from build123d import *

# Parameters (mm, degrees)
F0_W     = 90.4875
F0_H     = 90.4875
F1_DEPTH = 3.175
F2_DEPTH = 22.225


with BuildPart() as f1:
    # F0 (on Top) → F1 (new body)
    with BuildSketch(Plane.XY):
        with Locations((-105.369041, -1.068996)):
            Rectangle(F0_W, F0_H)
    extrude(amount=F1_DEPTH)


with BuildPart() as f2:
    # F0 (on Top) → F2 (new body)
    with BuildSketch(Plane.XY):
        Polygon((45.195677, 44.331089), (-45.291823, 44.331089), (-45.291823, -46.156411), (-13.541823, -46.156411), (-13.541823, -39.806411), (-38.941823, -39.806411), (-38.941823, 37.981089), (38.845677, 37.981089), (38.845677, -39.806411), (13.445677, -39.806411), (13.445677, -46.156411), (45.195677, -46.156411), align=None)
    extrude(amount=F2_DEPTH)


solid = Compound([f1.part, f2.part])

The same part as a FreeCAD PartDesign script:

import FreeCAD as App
import Part
import Sketcher
from FreeCAD import Vector
Q = App.Units.Quantity


def add_polygon(sketch, points):
    """Adds a closed chain of lines whose ends are joined by coincident constraints."""
    first, n = sketch.GeometryCount, len(points)
    for a, b in zip(points, points[1:] + points[:1]):
        sketch.addGeometry(Part.LineSegment(App.Vector(*a, 0), App.Vector(*b, 0)), False)
    for i in range(n):
        sketch.addConstraint(Sketcher.Constraint("Coincident", first + i, 2, first + (i + 1) % n, 1))

doc = App.newDocument("Part")
body = doc.addObject("PartDesign::Body", "Body")

# Sketch on XY plane
sketch1 = body.newObject("Sketcher::SketchObject", "Sketch")
sketch1.AttachmentSupport = (doc.getObject("XY_Plane"), [""])
sketch1.MapMode = "FlatFace"
add_polygon(sketch1, [(-150.612791, 44.174754), (-150.612791, -46.312746), (-60.125291, -46.312746), (-60.125291, 44.174754)])  # lines 0-3
sketch1.addConstraint(Sketcher.Constraint("Vertical", 0))
sketch1.addConstraint(Sketcher.Constraint("Horizontal", 1))
sketch1.addConstraint(Sketcher.Constraint("Vertical", 2))
sketch1.addConstraint(Sketcher.Constraint("Horizontal", 3))
sketch1.addConstraint(Sketcher.Constraint("Equal", 3, 0))
sketch1.addConstraint(Sketcher.Constraint("DistanceX", 1, 1, 1, 2, Q("3.5625 in")))
sketch1.addConstraint(Sketcher.Constraint("DistanceX", 0, 2, -1, 1, 150.612791))
sketch1.addConstraint(Sketcher.Constraint("DistanceY", 0, 2, -1, 1, 46.312746))
pad1 = body.newObject("PartDesign::Pad", "Pad")
pad1.Profile = sketch1
pad1.Length = Q("0.125 in")
body2 = doc.addObject("PartDesign::Body", "Body001")

# Sketch on XY plane
sketch2 = body2.newObject("Sketcher::SketchObject", "Sketch001")
sketch2.AttachmentSupport = (doc.getObject("XY_Plane001"), [""])
sketch2.MapMode = "FlatFace"
add_polygon(sketch2, [(45.195677, 44.331089), (-45.291823, 44.331089), (-45.291823, -46.156411), (-13.541823, -46.156411), (-13.541823, -39.806411), (-38.941823, -39.806411), (-38.941823, 37.981089), (38.845677, 37.981089), (38.845677, -39.806411), (13.445677, -39.806411), (13.445677, -46.156411), (45.195677, -46.156411)])  # lines 0-11
sketch2.addConstraint(Sketcher.Constraint("Horizontal", 0))
sketch2.addConstraint(Sketcher.Constraint("Vertical", 1))
sketch2.addConstraint(Sketcher.Constraint("Horizontal", 2))
sketch2.addConstraint(Sketcher.Constraint("Vertical", 3))
sketch2.addConstraint(Sketcher.Constraint("Horizontal", 4))
sketch2.addConstraint(Sketcher.Constraint("Vertical", 5))
sketch2.addConstraint(Sketcher.Constraint("Horizontal", 6))
sketch2.addConstraint(Sketcher.Constraint("Vertical", 7))
sketch2.addConstraint(Sketcher.Constraint("Horizontal", 8))
sketch2.addConstraint(Sketcher.Constraint("Vertical", 9))
sketch2.addConstraint(Sketcher.Constraint("Horizontal", 10))
sketch2.addConstraint(Sketcher.Constraint("Vertical", 11))
sketch2.addConstraint(Sketcher.Constraint("Horizontal", 4, 2, 7, 2))
sketch2.addConstraint(Sketcher.Constraint("Horizontal", 2, 2, 9, 2))
sketch2.addConstraint(Sketcher.Constraint("Equal", 4, 8))
sketch2.addConstraint(Sketcher.Constraint("Equal", 2, 10))
sketch2.addConstraint(Sketcher.Constraint("Equal", 0, 1))
sketch2.addConstraint(Sketcher.Constraint("Equal", 6, 5))
sketch2.addConstraint(Sketcher.Constraint("DistanceX", 4, 2, 4, 1, Q("1 in")))
sketch2.addConstraint(Sketcher.Constraint("DistanceX", 2, 1, 2, 2, Q("1.25 in")))
sketch2.addConstraint(Sketcher.Constraint("DistanceY", 3, 1, 3, 2, Q("0.25 in")))
sketch2.addConstraint(Sketcher.Constraint("DistanceX", 0, 2, 0, 1, Q("3.5625 in")))
sketch2.addConstraint(Sketcher.Constraint("DistanceY", -1, 1, 0, 2, 44.331089))
sketch2.addConstraint(Sketcher.Constraint("DistanceX", 0, 2, -1, 1, 45.291823))
pad2 = body2.newObject("PartDesign::Pad", "Pad001")
pad2.Profile = sketch2
pad2.Length = Q("0.875 in")

doc.recompute()
